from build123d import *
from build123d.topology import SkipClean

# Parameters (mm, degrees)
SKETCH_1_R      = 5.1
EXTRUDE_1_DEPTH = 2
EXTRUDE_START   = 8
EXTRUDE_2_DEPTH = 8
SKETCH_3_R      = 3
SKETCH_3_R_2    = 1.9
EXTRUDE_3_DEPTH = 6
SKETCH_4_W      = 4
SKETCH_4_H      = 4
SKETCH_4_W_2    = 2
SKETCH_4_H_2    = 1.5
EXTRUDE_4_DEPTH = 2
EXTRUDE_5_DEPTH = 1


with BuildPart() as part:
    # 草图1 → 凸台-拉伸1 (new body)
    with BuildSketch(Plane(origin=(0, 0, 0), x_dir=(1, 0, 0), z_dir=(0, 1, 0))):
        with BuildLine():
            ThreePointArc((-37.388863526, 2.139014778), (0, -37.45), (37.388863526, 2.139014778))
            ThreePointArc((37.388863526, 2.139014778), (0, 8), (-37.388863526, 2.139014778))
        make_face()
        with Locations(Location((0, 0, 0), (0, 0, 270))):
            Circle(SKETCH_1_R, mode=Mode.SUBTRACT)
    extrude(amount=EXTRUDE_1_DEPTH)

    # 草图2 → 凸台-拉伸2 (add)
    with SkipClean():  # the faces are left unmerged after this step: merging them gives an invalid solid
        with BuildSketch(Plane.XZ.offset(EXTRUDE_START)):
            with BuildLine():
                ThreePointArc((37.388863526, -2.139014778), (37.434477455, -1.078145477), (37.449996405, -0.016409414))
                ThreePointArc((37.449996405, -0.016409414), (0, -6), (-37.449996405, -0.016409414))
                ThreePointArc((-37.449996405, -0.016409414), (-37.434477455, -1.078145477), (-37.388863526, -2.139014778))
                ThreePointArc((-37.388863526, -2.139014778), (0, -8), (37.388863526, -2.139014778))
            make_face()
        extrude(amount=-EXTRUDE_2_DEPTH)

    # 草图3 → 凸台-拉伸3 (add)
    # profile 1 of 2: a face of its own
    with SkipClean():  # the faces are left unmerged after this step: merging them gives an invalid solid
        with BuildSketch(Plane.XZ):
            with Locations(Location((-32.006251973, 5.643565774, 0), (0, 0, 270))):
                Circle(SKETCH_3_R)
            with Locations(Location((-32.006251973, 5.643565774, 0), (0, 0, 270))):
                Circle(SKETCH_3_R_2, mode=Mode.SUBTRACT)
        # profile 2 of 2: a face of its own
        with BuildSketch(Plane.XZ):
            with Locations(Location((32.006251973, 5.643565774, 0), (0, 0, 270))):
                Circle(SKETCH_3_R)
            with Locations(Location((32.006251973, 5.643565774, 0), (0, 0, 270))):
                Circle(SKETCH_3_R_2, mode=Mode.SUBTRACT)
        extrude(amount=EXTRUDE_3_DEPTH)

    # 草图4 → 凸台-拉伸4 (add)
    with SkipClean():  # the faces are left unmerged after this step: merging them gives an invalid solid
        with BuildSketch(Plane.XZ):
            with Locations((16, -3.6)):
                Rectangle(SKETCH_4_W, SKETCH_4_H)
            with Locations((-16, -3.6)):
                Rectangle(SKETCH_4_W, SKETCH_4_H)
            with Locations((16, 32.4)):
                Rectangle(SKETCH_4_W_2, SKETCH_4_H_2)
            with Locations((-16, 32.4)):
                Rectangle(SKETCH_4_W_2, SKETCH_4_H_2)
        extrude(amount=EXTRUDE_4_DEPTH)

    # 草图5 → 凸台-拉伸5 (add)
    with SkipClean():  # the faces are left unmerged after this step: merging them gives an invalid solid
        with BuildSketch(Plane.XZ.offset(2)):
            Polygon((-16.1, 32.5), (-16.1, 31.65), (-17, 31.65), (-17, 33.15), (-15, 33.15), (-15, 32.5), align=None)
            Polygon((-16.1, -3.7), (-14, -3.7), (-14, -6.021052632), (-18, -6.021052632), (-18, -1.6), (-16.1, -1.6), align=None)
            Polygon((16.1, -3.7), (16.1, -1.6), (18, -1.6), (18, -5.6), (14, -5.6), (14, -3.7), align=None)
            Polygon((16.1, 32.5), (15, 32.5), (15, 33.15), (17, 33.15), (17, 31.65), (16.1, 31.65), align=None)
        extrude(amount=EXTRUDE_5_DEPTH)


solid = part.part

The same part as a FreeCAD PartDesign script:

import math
import FreeCAD as App
import Part
import Sketcher
Q = App.Units.Quantity

doc = App.newDocument("Part")
body = doc.addObject("PartDesign::Body", "Body")

sketch1 = doc.addObject("Sketcher::SketchObject", "Sketch")
body.addObject(sketch1)
sketch1.AttachmentSupport = (doc.XZ_Plane, [""])
sketch1.MapMode = "FlatFace"
sketch1.addGeometry(Part.ArcOfCircle(Part.Circle(App.Vector(0, 0, 0), App.Vector(0, 0, 1), 37.45), math.radians(-3.274319), math.radians(183.274319)), False)
sketch1.addGeometry(Part.ArcOfCircle(Part.Circle(App.Vector(0, 114.1875, 0), App.Vector(0, 0, 1), 122.1875), math.radians(-107.818084), math.radians(-72.181916)), False)
sketch1.addGeometry(Part.Circle(App.Vector(0, 0, 0), App.Vector(0, 0, 1), 5.1), False)
sketch1.addConstraint(Sketcher.Constraint("Coincident", 0, 1, 1, 2))
sketch1.addConstraint(Sketcher.Constraint("Coincident", 1, 1, 0, 2))
sketch1.addConstraint(Sketcher.Constraint("Coincident", 0, 3, -1, 1))
sketch1.addConstraint(Sketcher.Constraint("Coincident", 2, 3, -1, 1))
sketch1.addConstraint(Sketcher.Constraint("PointOnObject", 1, 3, -2))
sketch1.addConstraint(Sketcher.Constraint("Diameter", 2, Q("10.2 mm")))
sketch1.addConstraint(Sketcher.Constraint("Radius", 0, Q("37.45 mm")))
sketch1.addConstraint(Sketcher.Constraint("Radius", 1, Q("122.1875 mm")))
sketch1.addConstraint(Sketcher.Constraint("DistanceY", -1, 1, 1, 3, Q("114.1875 mm")))
pad1 = doc.addObject("PartDesign::Pad", "Pad")
body.addObject(pad1)
pad1.Profile = sketch1
pad1.Length = 2
pad1.Reversed = True

sketch2 = doc.addObject("Sketcher::SketchObject", "Sketch001")
body.addObject(sketch2)
sketch2.AttachmentSupport = (doc.XZ_Plane, [""])
sketch2.MapMode = "FlatFace"
sketch2.AttachmentOffset = App.Placement(App.Vector(0, 0, 8), App.Rotation())
sketch2.addGeometry(Part.ArcOfCircle(Part.Circle(App.Vector(0, 0, 0), App.Vector(0, 0, 1), 37.45), math.radians(-3.274319), math.radians(-0.025105)), False)
sketch2.addGeometry(Part.ArcOfCircle(Part.Circle(App.Vector(0, 114.1875, 0), App.Vector(0, 0, 1), 120.1875), math.radians(-108.155465), math.radians(-71.844535)), False)
sketch2.addGeometry(Part.ArcOfCircle(Part.Circle(App.Vector(0, 0, 0), App.Vector(0, 0, 1), 37.45), math.radians(-179.974895), math.radians(-176.725681)), False)
sketch2.addGeometry(Part.ArcOfCircle(Part.Circle(App.Vector(0, 114.1875, 0), App.Vector(0, 0, 1), 122.1875), math.radians(-107.818084), math.radians(-72.181916)), False)
sketch2.addConstraint(Sketcher.Constraint("Coincident", 0, 2, 1, 2))
sketch2.addConstraint(Sketcher.Constraint("Coincident", 1, 1, 2, 1))
sketch2.addConstraint(Sketcher.Constraint("Coincident", 2, 2, 3, 1))
sketch2.addConstraint(Sketcher.Constraint("Coincident", 3, 2, 0, 1))
sketch2.addConstraint(Sketcher.Constraint("Coincident", 0, 3, -1, 1))
sketch2.addConstraint(Sketcher.Constraint("Coincident", 2, 3, -1, 1))
sketch2.addConstraint(Sketcher.Constraint("Coincident", 3, 3, 1, 3))
sketch2.addConstraint(Sketcher.Constraint("Equal", 0, 2))
sketch2.addConstraint(Sketcher.Constraint("PointOnObject", 1, 3, -2))
sketch2.addConstraint(Sketcher.Constraint("Radius", 0, Q("37.45 mm")))
sketch2.addConstraint(Sketcher.Constraint("Radius", 1, Q("120.1875 mm")))
sketch2.addConstraint(Sketcher.Constraint("Radius", 3, Q("122.1875 mm")))
sketch2.addConstraint(Sketcher.Constraint("DistanceY", -1, 1, 1, 3, Q("114.1875 mm")))
pad2 = doc.addObject("PartDesign::Pad", "Pad001")
body.addObject(pad2)
pad2.Profile = sketch2
pad2.Length = 8
pad2.Reversed = True

sketch3 = doc.addObject("Sketcher::SketchObject", "Sketch002")
body.addObject(sketch3)
sketch3.AttachmentSupport = (doc.XZ_Plane, [""])
sketch3.MapMode = "FlatFace"
sketch3.addGeometry(Part.Circle(App.Vector(-32.006252, 5.643566, 0), App.Vector(0, 0, 1), 3), False)
sketch3.addGeometry(Part.Circle(App.Vector(-32.006252, 5.643566, 0), App.Vector(0, 0, 1), 1.9), False)
sketch3.addGeometry(Part.Circle(App.Vector(32.006252, 5.643566, 0), App.Vector(0, 0, 1), 3), False)
sketch3.addGeometry(Part.Circle(App.Vector(32.006252, 5.643566, 0), App.Vector(0, 0, 1), 1.9), False)
sketch3.addConstraint(Sketcher.Constraint("Coincident", 1, 3, 0, 3))
sketch3.addConstraint(Sketcher.Constraint("Coincident", 3, 3, 2, 3))
sketch3.addConstraint(Sketcher.Constraint("Equal", 0, 2))
sketch3.addConstraint(Sketcher.Constraint("Equal", 1, 3))
sketch3.addConstraint(Sketcher.Constraint("Symmetric", 0, 3, 2, 3, -2))
sketch3.addConstraint(Sketcher.Constraint("Diameter", 0, Q("6 mm")))
sketch3.addConstraint(Sketcher.Constraint("Diameter", 1, Q("3.8 mm")))
sketch3.addConstraint(Sketcher.Constraint("DistanceX", 0, 3, -1, 1, Q("32.006252 mm")))
sketch3.addConstraint(Sketcher.Constraint("DistanceY", -1, 1, 0, 3, Q("5.643566 mm")))
pad3 = doc.addObject("PartDesign::Pad", "Pad002")
body.addObject(pad3)
pad3.Profile = sketch3
pad3.Length = 6

sketch4 = doc.addObject("Sketcher::SketchObject", "Sketch003")
body.addObject(sketch4)
sketch4.AttachmentSupport = (doc.XZ_Plane, [""])
sketch4.MapMode = "FlatFace"
sketch4.addGeometry(Part.LineSegment(App.Vector(14, -1.6, 0), App.Vector(14, -5.6, 0)), False)
sketch4.addGeometry(Part.LineSegment(App.Vector(14, -5.6, 0), App.Vector(18, -5.6, 0)), False)
sketch4.addGeometry(Part.LineSegment(App.Vector(18, -5.6, 0), App.Vector(18, -1.6, 0)), False)
sketch4.addGeometry(Part.LineSegment(App.Vector(18, -1.6, 0), App.Vector(14, -1.6, 0)), False)
sketch4.addGeometry(Part.LineSegment(App.Vector(-18, -1.6, 0), App.Vector(-18, -5.6, 0)), False)
sketch4.addGeometry(Part.LineSegment(App.Vector(-18, -5.6, 0), App.Vector(-14, -5.6, 0)), False)
sketch4.addGeometry(Part.LineSegment(App.Vector(-14, -5.6, 0), App.Vector(-14, -1.6, 0)), False)
sketch4.addGeometry(Part.LineSegment(App.Vector(-14, -1.6, 0), App.Vector(-18, -1.6, 0)), False)
sketch4.addGeometry(Part.LineSegment(App.Vector(15, 33.15, 0), App.Vector(15, 31.65, 0)), False)
sketch4.addGeometry(Part.LineSegment(App.Vector(15, 31.65, 0), App.Vector(17, 31.65, 0)), False)
sketch4.addGeometry(Part.LineSegment(App.Vector(17, 31.65, 0), App.Vector(17, 33.15, 0)), False)
sketch4.addGeometry(Part.LineSegment(App.Vector(17, 33.15, 0), App.Vector(15, 33.15, 0)), False)
sketch4.addGeometry(Part.LineSegment(App.Vector(-17, 33.15, 0), App.Vector(-17, 31.65, 0)), False)
sketch4.addGeometry(Part.LineSegment(App.Vector(-17, 31.65, 0), App.Vector(-15, 31.65, 0)), False)
sketch4.addGeometry(Part.LineSegment(App.Vector(-15, 31.65, 0), App.Vector(-15, 33.15, 0)), False)
sketch4.addGeometry(Part.LineSegment(App.Vector(-15, 33.15, 0), App.Vector(-17, 33.15, 0)), False)
sketch4.addConstraint(Sketcher.Constraint("Coincident", 0, 2, 1, 1))
sketch4.addConstraint(Sketcher.Constraint("Coincident", 1, 2, 2, 1))
sketch4.addConstraint(Sketcher.Constraint("Coincident", 2, 2, 3, 1))
sketch4.addConstraint(Sketcher.Constraint("Coincident", 3, 2, 0, 1))
sketch4.addConstraint(Sketcher.Constraint("Coincident", 4, 2, 5, 1))
sketch4.addConstraint(Sketcher.Constraint("Coincident", 5, 2, 6, 1))
sketch4.addConstraint(Sketcher.Constraint("Coincident", 6, 2, 7, 1))
sketch4.addConstraint(Sketcher.Constraint("Coincident", 7, 2, 4, 1))
sketch4.addConstraint(Sketcher.Constraint("Coincident", 8, 2, 9, 1))
sketch4.addConstraint(Sketcher.Constraint("Coincident", 9, 2, 10, 1))
sketch4.addConstraint(Sketcher.Constraint("Coincident", 10, 2, 11, 1))
sketch4.addConstraint(Sketcher.Constraint("Coincident", 11, 2, 8, 1))
sketch4.addConstraint(Sketcher.Constraint("Coincident", 12, 2, 13, 1))
sketch4.addConstraint(Sketcher.Constraint("Coincident", 13, 2, 14, 1))
sketch4.addConstraint(Sketcher.Constraint("Coincident", 14, 2, 15, 1))
sketch4.addConstraint(Sketcher.Constraint("Coincident", 15, 2, 12, 1))
sketch4.addConstraint(Sketcher.Constraint("Vertical", 0))
sketch4.addConstraint(Sketcher.Constraint("Horizontal", 1))
sketch4.addConstraint(Sketcher.Constraint("Vertical", 2))
sketch4.addConstraint(Sketcher.Constraint("Horizontal", 3))
sketch4.addConstraint(Sketcher.Constraint("Vertical", 4))
sketch4.addConstraint(Sketcher.Constraint("Horizontal", 5))
sketch4.addConstraint(Sketcher.Constraint("Vertical", 6))
sketch4.addConstraint(Sketcher.Constraint("Horizontal", 7))
sketch4.addConstraint(Sketcher.Constraint("Vertical", 8))
sketch4.addConstraint(Sketcher.Constraint("Horizontal", 9))
sketch4.addConstraint(Sketcher.Constraint("Vertical", 10))
sketch4.addConstraint(Sketcher.Constraint("Horizontal", 11))
sketch4.addConstraint(Sketcher.Constraint("Vertical", 12))
sketch4.addConstraint(Sketcher.Constraint("Horizontal", 13))
sketch4.addConstraint(Sketcher.Constraint("Vertical", 14))
sketch4.addConstraint(Sketcher.Constraint("Horizontal", 15))
sketch4.addConstraint(Sketcher.Constraint("Symmetric", 1, 2, 4, 2, -2))
sketch4.addConstraint(Sketcher.Constraint("Symmetric", 3, 2, 6, 2, -2))
sketch4.addConstraint(Sketcher.Constraint("Symmetric", 9, 2, 12, 2, -2))
sketch4.addConstraint(Sketcher.Constraint("Symmetric", 11, 2, 14, 2, -2))
sketch4.addConstraint(Sketcher.Constraint("Equal", 7, 0))
sketch4.addConstraint(Sketcher.Constraint("DistanceX", 1, 1, 1, 2, Q("4 mm")))
sketch4.addConstraint(Sketcher.Constraint("DistanceX", 9, 1, 9, 2, Q("2 mm")))
sketch4.addConstraint(Sketcher.Constraint("DistanceY", 8, 2, 8, 1, Q("1.5 mm")))
sketch4.addConstraint(Sketcher.Constraint("DistanceX", -1, 1, 0, 2, Q("14 mm")))
sketch4.addConstraint(Sketcher.Constraint("DistanceX", -1, 1, 8, 2, Q("15 mm")))
sketch4.addConstraint(Sketcher.Constraint("DistanceY", 0, 2, -1, 1, Q("5.6 mm")))
sketch4.addConstraint(Sketcher.Constraint("DistanceY", -1, 1, 8, 2, Q("31.65 mm")))
pad4 = doc.addObject("PartDesign::Pad", "Pad003")
body.addObject(pad4)
pad4.Profile = sketch4
pad4.Length = 2

sketch5 = doc.addObject("Sketcher::SketchObject", "Sketch004")
body.addObject(sketch5)
sketch5.AttachmentSupport = (doc.XZ_Plane, [""])
sketch5.MapMode = "FlatFace"
sketch5.AttachmentOffset = App.Placement(App.Vector(0, 0, 2), App.Rotation())
sketch5.addGeometry(Part.LineSegment(App.Vector(-16.1, 31.65, 0), App.Vector(-16.1, 32.5, 0)), False)
sketch5.addGeometry(Part.LineSegment(App.Vector(-16.1, 32.5, 0), App.Vector(-15, 32.5, 0)), False)
sketch5.addGeometry(Part.LineSegment(App.Vector(-15, 32.5, 0), App.Vector(-15, 33.15, 0)), False)
sketch5.addGeometry(Part.LineSegment(App.Vector(-15, 33.15, 0), App.Vector(-17, 33.15, 0)), False)
sketch5.addGeometry(Part.LineSegment(App.Vector(-17, 33.15, 0), App.Vector(-17, 31.65, 0)), False)
sketch5.addGeometry(Part.LineSegment(App.Vector(-17, 31.65, 0), App.Vector(-16.1, 31.65, 0)), False)
sketch5.addGeometry(Part.LineSegment(App.Vector(-14, -3.7, 0), App.Vector(-16.1, -3.7, 0)), False)
sketch5.addGeometry(Part.LineSegment(App.Vector(-16.1, -3.7, 0), App.Vector(-16.1, -1.6, 0)), False)
sketch5.addGeometry(Part.LineSegment(App.Vector(-16.1, -1.6, 0), App.Vector(-18, -1.6, 0)), False)
sketch5.addGeometry(Part.LineSegment(App.Vector(-18, -1.6, 0), App.Vector(-18, -6.021053, 0)), False)
sketch5.addGeometry(Part.LineSegment(App.Vector(-18, -6.021053, 0), App.Vector(-14, -6.021053, 0)), False)
sketch5.addGeometry(Part.LineSegment(App.Vector(-14, -6.021053, 0), App.Vector(-14, -3.7, 0)), False)
sketch5.addGeometry(Part.LineSegment(App.Vector(16.1, -1.6, 0), App.Vector(16.1, -3.7, 0)), False)
sketch5.addGeometry(Part.LineSegment(App.Vector(16.1, -3.7, 0), App.Vector(14, -3.7, 0)), False)
sketch5.addGeometry(Part.LineSegment(App.Vector(14, -3.7, 0), App.Vector(14, -5.6, 0)), False)
sketch5.addGeometry(Part.LineSegment(App.Vector(14, -5.6, 0), App.Vector(18, -5.6, 0)), False)
sketch5.addGeometry(Part.LineSegment(App.Vector(18, -5.6, 0), App.Vector(18, -1.6, 0)), False)
sketch5.addGeometry(Part.LineSegment(App.Vector(18, -1.6, 0), App.Vector(16.1, -1.6, 0)), False)
sketch5.addGeometry(Part.LineSegment(App.Vector(15, 32.5, 0), App.Vector(16.1, 32.5, 0)), False)
sketch5.addGeometry(Part.LineSegment(App.Vector(16.1, 32.5, 0), App.Vector(16.1, 31.65, 0)), False)
sketch5.addGeometry(Part.LineSegment(App.Vector(16.1, 31.65, 0), App.Vector(17, 31.65, 0)), False)
sketch5.addGeometry(Part.LineSegment(App.Vector(17, 31.65, 0), App.Vector(17, 33.15, 0)), False)
sketch5.addGeometry(Part.LineSegment(App.Vector(17, 33.15, 0), App.Vector(15, 33.15, 0)), False)
sketch5.addGeometry(Part.LineSegment(App.Vector(15, 33.15, 0), App.Vector(15, 32.5, 0)), False)
sketch5.addConstraint(Sketcher.Constraint("Coincident", 0, 2, 1, 1))
sketch5.addConstraint(Sketcher.Constraint("Coincident", 1, 2, 2, 1))
sketch5.addConstraint(Sketcher.Constraint("Coincident", 2, 2, 3, 1))
sketch5.addConstraint(Sketcher.Constraint("Coincident", 3, 2, 4, 1))
sketch5.addConstraint(Sketcher.Constraint("Coincident", 4, 2, 5, 1))
sketch5.addConstraint(Sketcher.Constraint("Coincident", 5, 2, 0, 1))
sketch5.addConstraint(Sketcher.Constraint("Coincident", 6, 2, 7, 1))
sketch5.addConstraint(Sketcher.Constraint("Coincident", 7, 2, 8, 1))
sketch5.addConstraint(Sketcher.Constraint("Coincident", 8, 2, 9, 1))
sketch5.addConstraint(Sketcher.Constraint("Coincident", 9, 2, 10, 1))
sketch5.addConstraint(Sketcher.Constraint("Coincident", 10, 2, 11, 1))
sketch5.addConstraint(Sketcher.Constraint("Coincident", 11, 2, 6, 1))
sketch5.addConstraint(Sketcher.Constraint("Coincident", 12, 2, 13, 1))
sketch5.addConstraint(Sketcher.Constraint("Coincident", 13, 2, 14, 1))
sketch5.addConstraint(Sketcher.Constraint("Coincident", 14, 2, 15, 1))
sketch5.addConstraint(Sketcher.Constraint("Coincident", 15, 2, 16, 1))
sketch5.addConstraint(Sketcher.Constraint("Coincident", 16, 2, 17, 1))
sketch5.addConstraint(Sketcher.Constraint("Coincident", 17, 2, 12, 1))
sketch5.addConstraint(Sketcher.Constraint("Coincident", 18, 2, 19, 1))
sketch5.addConstraint(Sketcher.Constraint("Coincident", 19, 2, 20, 1))
sketch5.addConstraint(Sketcher.Constraint("Coincident", 20, 2, 21, 1))
sketch5.addConstraint(Sketcher.Constraint("Coincident", 21, 2, 22, 1))
sketch5.addConstraint(Sketcher.Constraint("Coincident", 22, 2, 23, 1))
sketch5.addConstraint(Sketcher.Constraint("Coincident", 23, 2, 18, 1))
sketch5.addConstraint(Sketcher.Constraint("Vertical", 0))
sketch5.addConstraint(Sketcher.Constraint("Horizontal", 1))
sketch5.addConstraint(Sketcher.Constraint("Vertical", 2))
sketch5.addConstraint(Sketcher.Constraint("Horizontal", 3))
sketch5.addConstraint(Sketcher.Constraint("Vertical", 4))
sketch5.addConstraint(Sketcher.Constraint("Horizontal", 5))
sketch5.addConstraint(Sketcher.Constraint("Horizontal", 6))
sketch5.addConstraint(Sketcher.Constraint("Vertical", 7))
sketch5.addConstraint(Sketcher.Constraint("Horizontal", 8))
sketch5.addConstraint(Sketcher.Constraint("Vertical", 9))
sketch5.addConstraint(Sketcher.Constraint("Horizontal", 10))
sketch5.addConstraint(Sketcher.Constraint("Vertical", 11))
sketch5.addConstraint(Sketcher.Constraint("Vertical", 12))
sketch5.addConstraint(Sketcher.Constraint("Horizontal", 13))
sketch5.addConstraint(Sketcher.Constraint("Vertical", 14))
sketch5.addConstraint(Sketcher.Constraint("Horizontal", 15))
sketch5.addConstraint(Sketcher.Constraint("Vertical", 16))
sketch5.addConstraint(Sketcher.Constraint("Horizontal", 17))
sketch5.addConstraint(Sketcher.Constraint("Horizontal", 18))
sketch5.addConstraint(Sketcher.Constraint("Vertical", 19))
sketch5.addConstraint(Sketcher.Constraint("Horizontal", 20))
sketch5.addConstraint(Sketcher.Constraint("Vertical", 21))
sketch5.addConstraint(Sketcher.Constraint("Horizontal", 22))
sketch5.addConstraint(Sketcher.Constraint("Vertical", 23))
sketch5.addConstraint(Sketcher.Constraint("Symmetric", 6, 2, 12, 2, -2))
sketch5.addConstraint(Sketcher.Constraint("Symmetric", 8, 2, 16, 2, -2))
sketch5.addConstraint(Sketcher.Constraint("Symmetric", 0, 2, 18, 2, -2))
sketch5.addConstraint(Sketcher.Constraint("Symmetric", 4, 2, 20, 2, -2))
sketch5.addConstraint(Sketcher.Constraint("Symmetric", 2, 2, 22, 2, -2))
sketch5.addConstraint(Sketcher.Constraint("Vertical", 5, 2, 6, 2))
sketch5.addConstraint(Sketcher.Constraint("Equal", 6, 13))
sketch5.addConstraint(Sketcher.Constraint("Equal", 13, 7))
sketch5.addConstraint(Sketcher.Constraint("Equal", 17, 14))
sketch5.addConstraint(Sketcher.Constraint("DistanceX", 3, 2, 3, 1, Q("2 mm")))
sketch5.addConstraint(Sketcher.Constraint("DistanceX", 10, 1, 10, 2, Q("4 mm")))
sketch5.addConstraint(Sketcher.Constraint("DistanceX", 1, 1, 1, 2, Q("1.1 mm")))
sketch5.addConstraint(Sketcher.Constraint("DistanceX", 6, 2, 6, 1, Q("2.1 mm")))
sketch5.addConstraint(Sketcher.Constraint("DistanceY", 4, 2, 4, 1, Q("1.5 mm")))
sketch5.addConstraint(Sketcher.Constraint("DistanceX", 1, 2, -1, 1, Q("15 mm")))
sketch5.addConstraint(Sketcher.Constraint("DistanceY", 0, 1, 0, 2, Q("0.85 mm")))
sketch5.addConstraint(Sketcher.Constraint("DistanceY", -1, 1, 0, 2, Q("32.5 mm")))
sketch5.addConstraint(Sketcher.Constraint("DistanceY", 6, 2, -1, 1, Q("3.7 mm")))
sketch5.addConstraint(Sketcher.Constraint("DistanceY", 9, 2, 9, 1, Q("4.421053 mm")))
pad5 = doc.addObject("PartDesign::Pad", "Pad004")
body.addObject(pad5)
pad5.Profile = sketch5
pad5.Length = 1

doc.recompute()
